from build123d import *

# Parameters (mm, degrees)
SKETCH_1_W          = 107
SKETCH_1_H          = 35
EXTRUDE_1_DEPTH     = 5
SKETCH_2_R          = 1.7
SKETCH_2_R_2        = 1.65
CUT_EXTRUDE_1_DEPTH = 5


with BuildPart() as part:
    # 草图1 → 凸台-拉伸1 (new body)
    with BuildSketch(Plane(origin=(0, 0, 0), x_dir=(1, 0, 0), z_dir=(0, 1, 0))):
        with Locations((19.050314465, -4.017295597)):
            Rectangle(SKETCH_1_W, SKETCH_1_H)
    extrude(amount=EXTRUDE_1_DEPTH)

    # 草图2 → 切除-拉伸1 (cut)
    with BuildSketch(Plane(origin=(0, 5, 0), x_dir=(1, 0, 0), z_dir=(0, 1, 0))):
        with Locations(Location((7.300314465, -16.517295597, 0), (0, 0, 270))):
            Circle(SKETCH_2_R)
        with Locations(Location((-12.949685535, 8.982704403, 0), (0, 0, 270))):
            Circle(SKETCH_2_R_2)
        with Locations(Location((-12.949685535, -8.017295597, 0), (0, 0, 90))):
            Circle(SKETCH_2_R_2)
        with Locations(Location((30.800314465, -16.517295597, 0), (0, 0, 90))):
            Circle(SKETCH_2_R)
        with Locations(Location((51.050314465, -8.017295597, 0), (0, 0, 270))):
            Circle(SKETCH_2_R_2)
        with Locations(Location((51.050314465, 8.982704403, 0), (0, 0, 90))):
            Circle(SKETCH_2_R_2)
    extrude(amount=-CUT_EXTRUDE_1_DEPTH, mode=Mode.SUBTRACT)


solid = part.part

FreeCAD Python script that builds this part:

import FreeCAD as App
import Part
import Sketcher
Q = App.Units.Quantity

doc = App.newDocument("Part")
params = doc.addObject("Spreadsheet::Sheet", "Params")
for row, (alias, value) in enumerate([
    ("sketch1_width", "107 mm"),
    ("sketch1_height", "35 mm"),
    ("pad1_length", "5 mm"),
    ("sketch2_diameter", "3.4 mm"),
    ("sketch2_diameter2", "3.3 mm"),
    ("pocket1_length", "5 mm"),
], start=1):
    params.set(f"A{row}", alias)
    params.set(f"B{row}", "=" + value)
    params.setAlias(f"B{row}", alias)

body = doc.addObject("PartDesign::Body", "Body")

# Sketch on XZ plane
sketch1 = body.newObject("Sketcher::SketchObject", "Sketch")
sketch1.AttachmentSupport = (doc.getObject("XZ_Plane"), [""])
sketch1.MapMode = "FlatFace"
sketch1.addGeometry([
    Part.LineSegment(App.Vector(-34, -13, 0), App.Vector(-34, 22, 0)),
    Part.LineSegment(App.Vector(-34, 22, 0), App.Vector(73, 22, 0)),
    Part.LineSegment(App.Vector(73, 22, 0), App.Vector(73, -13, 0)),
    Part.LineSegment(App.Vector(73, -13, 0), App.Vector(-34, -13, 0)),
], False)
sketch1.addConstraint([
    Sketcher.Constraint("Coincident", 0, 2, 1, 1),
    Sketcher.Constraint("Coincident", 1, 2, 2, 1),
    Sketcher.Constraint("Coincident", 2, 2, 3, 1),
    Sketcher.Constraint("Coincident", 3, 2, 0, 1),
    Sketcher.Constraint("Vertical", 0),
    Sketcher.Constraint("Horizontal", 1),
    Sketcher.Constraint("Vertical", 2),
    Sketcher.Constraint("Horizontal", 3),
    Sketcher.Constraint("DistanceX", 1, 1, 1, 2, Q("107 mm")),
    Sketcher.Constraint("DistanceY", 0, 1, 0, 2, Q("35 mm")),
    Sketcher.Constraint("DistanceX", 0, 2, -1, 1, Q("34.449686 mm")),
    Sketcher.Constraint("DistanceY", -1, 1, 0, 2, Q("21.517296 mm")),
])
sketch1.setExpression("Constraints[8]", "Params.sketch1_width")
sketch1.setExpression("Constraints[9]", "Params.sketch1_height")
pad1 = body.newObject("PartDesign::Pad", "Pad")
pad1.Profile = sketch1
pad1.setExpression("Length", "Params.pad1_length")
pad1.Reversed = True

# Sketch on XZ plane
sketch2 = body.newObject("Sketcher::SketchObject", "Sketch001")
sketch2.AttachmentSupport = (doc.getObject("XZ_Plane"), [""])
sketch2.MapMode = "FlatFace"
sketch2.AttachmentOffset = App.Placement(App.Vector(0, 0, -5), App.Rotation())
sketch2.addGeometry([
    Part.Circle(App.Vector(7.3, 16.5, 0), App.Vector(0, 0, 1), 1.7),  # 0
    Part.Circle(App.Vector(-12.9, -9, 0), App.Vector(0, 0, 1), 1.6),  # 1
    Part.Circle(App.Vector(-12.9, 8, 0), App.Vector(0, 0, 1), 1.6),  # 2
    Part.Circle(App.Vector(30.8, 16.5, 0), App.Vector(0, 0, 1), 1.7),  # 3
    Part.Circle(App.Vector(51.1, 8, 0), App.Vector(0, 0, 1), 1.6),  # 4
    Part.Circle(App.Vector(51.1, -9, 0), App.Vector(0, 0, 1), 1.6),  # 5
], False)
sketch2.addConstraint([
    Sketcher.Constraint("Equal", 1, 2),
    Sketcher.Constraint("Equal", 0, 3),
    Sketcher.Constraint("Equal", 2, 4),
    Sketcher.Constraint("Equal", 4, 5),
    Sketcher.Constraint("Horizontal", 0, 3, 3, 3),
    Sketcher.Constraint("Horizontal", 2, 3, 4, 3),
    Sketcher.Constraint("Horizontal", 1, 3, 5, 3),
    Sketcher.Constraint("Vertical", 1, 3, 2, 3),
    Sketcher.Constraint("Vertical", 4, 3, 5, 3),
    Sketcher.Constraint("Diameter", 0, Q("3.4 mm")),
    Sketcher.Constraint("Diameter", 1, Q("3.3 mm")),
    Sketcher.Constraint("DistanceY", 1, 3, 2, 3, Q("17 mm")),
    Sketcher.Constraint("DistanceX", 2, 3, 4, 3, Q("64 mm")),
    Sketcher.Constraint("DistanceY", 1, 3, 0, 3, Q("25.5 mm")),
    Sketcher.Constraint("DistanceX", 0, 3, 3, 3, Q("23.5 mm")),
    Sketcher.Constraint("DistanceX", 1, 3, 0, 3, Q("20.25 mm")),
    Sketcher.Constraint("DistanceX", -1, 1, 0, 3, Q("7.300314 mm")),
    Sketcher.Constraint("DistanceY", -1, 1, 0, 3, Q("16.517296 mm")),
])
sketch2.setExpression("Constraints[9]", "Params.sketch2_diameter")
sketch2.setExpression("Constraints[10]", "Params.sketch2_diameter2")
pocket1 = body.newObject("PartDesign::Pocket", "Pocket")
pocket1.Profile = sketch2
pocket1.setExpression("Length", "Params.pocket1_length")
pocket1.Reversed = True

doc.recompute()
